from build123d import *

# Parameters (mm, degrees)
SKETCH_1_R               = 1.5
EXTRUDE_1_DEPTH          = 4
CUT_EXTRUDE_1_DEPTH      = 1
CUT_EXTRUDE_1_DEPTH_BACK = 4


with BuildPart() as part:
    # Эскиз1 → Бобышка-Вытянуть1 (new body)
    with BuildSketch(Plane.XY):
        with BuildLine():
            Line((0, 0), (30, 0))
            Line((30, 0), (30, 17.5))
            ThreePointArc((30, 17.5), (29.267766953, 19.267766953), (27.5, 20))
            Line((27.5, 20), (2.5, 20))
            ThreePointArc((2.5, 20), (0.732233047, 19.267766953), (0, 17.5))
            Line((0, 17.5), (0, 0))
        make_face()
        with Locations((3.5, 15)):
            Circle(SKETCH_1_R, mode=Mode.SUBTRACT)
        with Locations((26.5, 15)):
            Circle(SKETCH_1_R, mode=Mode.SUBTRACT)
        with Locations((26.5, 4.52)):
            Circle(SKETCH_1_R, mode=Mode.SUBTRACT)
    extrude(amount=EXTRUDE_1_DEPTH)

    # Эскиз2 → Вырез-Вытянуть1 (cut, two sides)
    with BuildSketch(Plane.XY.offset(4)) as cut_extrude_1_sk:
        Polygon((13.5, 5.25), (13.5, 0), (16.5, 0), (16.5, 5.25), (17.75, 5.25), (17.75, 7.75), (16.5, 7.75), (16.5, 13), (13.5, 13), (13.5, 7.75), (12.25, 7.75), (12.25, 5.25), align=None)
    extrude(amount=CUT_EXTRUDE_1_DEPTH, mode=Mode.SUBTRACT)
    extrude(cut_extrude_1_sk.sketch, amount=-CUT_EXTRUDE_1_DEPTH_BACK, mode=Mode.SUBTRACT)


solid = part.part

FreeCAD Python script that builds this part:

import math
import FreeCAD as App
import Part
import Sketcher
Q = App.Units.Quantity


def add_polygon(sketch, points):
    """Adds a closed chain of lines whose ends are joined by coincident constraints."""
    first, n = sketch.GeometryCount, len(points)
    for a, b in zip(points, points[1:] + points[:1]):
        sketch.addGeometry(Part.LineSegment(App.Vector(*a, 0), App.Vector(*b, 0)), False)
    for i in range(n):
        sketch.addConstraint(Sketcher.Constraint("Coincident", first + i, 2, first + (i + 1) % n, 1))

doc = App.newDocument("Part")
body = doc.addObject("PartDesign::Body", "Body")

sketch1 = body.newObject("Sketcher::SketchObject", "Sketch")
sketch1.AttachmentSupport = (doc.getObject("XY_Plane"), [""])
sketch1.MapMode = "FlatFace"
sketch1.addGeometry([
    Part.LineSegment(App.Vector(0, 0, 0), App.Vector(30, 0, 0)),
    Part.LineSegment(App.Vector(30, 0, 0), App.Vector(30, 17.5, 0)),
    Part.ArcOfCircle(Part.Circle(App.Vector(27.5, 17.5, 0), App.Vector(0, 0, 1), 2.5), math.radians(0), math.radians(90)),
    Part.LineSegment(App.Vector(27.5, 20, 0), App.Vector(2.5, 20, 0)),
    Part.ArcOfCircle(Part.Circle(App.Vector(2.5, 17.5, 0), App.Vector(0, 0, 1), 2.5), math.radians(90), math.radians(180)),
    Part.LineSegment(App.Vector(0, 17.5, 0), App.Vector(0, 0, 0)),
    Part.Circle(App.Vector(26.5, 4.5, 0), App.Vector(0, 0, 1), 1.5),
    Part.Circle(App.Vector(3.5, 15, 0), App.Vector(0, 0, 1), 1.5),
    Part.Circle(App.Vector(26.5, 15, 0), App.Vector(0, 0, 1), 1.5),
], False)
sketch1.addConstraint([
    Sketcher.Constraint("Coincident", 0, 2, 1, 1),
    Sketcher.Constraint("Tangent", 1, 2, 2, 1),
    Sketcher.Constraint("Tangent", 2, 2, 3, 1),
    Sketcher.Constraint("Tangent", 3, 2, 4, 1),
    Sketcher.Constraint("Tangent", 4, 2, 5, 1),
    Sketcher.Constraint("Coincident", 5, 2, 0, 1),
    Sketcher.Constraint("Horizontal", 0),
    Sketcher.Constraint("Vertical", 1),
    Sketcher.Constraint("Horizontal", 3),
    Sketcher.Constraint("Vertical", 5),
    Sketcher.Constraint("Coincident", 5, 2, -1, 1),
    Sketcher.Constraint("Equal", 2, 4),
    Sketcher.Constraint("Equal", 6, 7),
    Sketcher.Constraint("Equal", 7, 8),
    Sketcher.Constraint("Horizontal", 7, 3, 8, 3),
    Sketcher.Constraint("Vertical", 6, 3, 8, 3),
    Sketcher.Constraint("Diameter", 6, Q("3 mm")),
    Sketcher.Constraint("Radius", 2, Q("2.5 mm")),
    Sketcher.Constraint("DistanceX", 0, 1, 0, 2, Q("30 mm")),
    Sketcher.Constraint("DistanceY", 1, 1, 1, 2, Q("17.5 mm")),
    Sketcher.Constraint("DistanceY", -1, 1, 7, 3, Q("15 mm")),
    Sketcher.Constraint("DistanceX", 6, 3, 2, 3, Q("1 mm")),
    Sketcher.Constraint("DistanceX", 4, 3, 7, 3, Q("1 mm")),
    Sketcher.Constraint("DistanceY", -1, 1, 6, 3, Q("4.52 mm")),
])
pad1 = body.newObject("PartDesign::Pad", "Pad")
pad1.Profile = sketch1
pad1.Length = 4

sketch2 = body.newObject("Sketcher::SketchObject", "Sketch001")
sketch2.AttachmentSupport = (doc.getObject("XY_Plane"), [""])
sketch2.MapMode = "FlatFace"
sketch2.AttachmentOffset = App.Placement(App.Vector(0, 0, 4), App.Rotation())
add_polygon(sketch2, [(13.5, 5.2), (13.5, 0), (16.5, 0), (16.5, 5.2), (17.8, 5.2), (17.8, 7.8), (16.5, 7.8), (16.5, 13), (13.5, 13), (13.5, 7.8), (12.2, 7.8), (12.2, 5.2)])
sketch2.addConstraint([
    Sketcher.Constraint("Vertical", 0),
    Sketcher.Constraint("Horizontal", 1),
    Sketcher.Constraint("Vertical", 2),
    Sketcher.Constraint("Horizontal", 3),
    Sketcher.Constraint("Vertical", 4),
    Sketcher.Constraint("Horizontal", 5),
    Sketcher.Constraint("Vertical", 6),
    Sketcher.Constraint("Horizontal", 7),
    Sketcher.Constraint("Vertical", 8),
    Sketcher.Constraint("Horizontal", 9),
    Sketcher.Constraint("Vertical", 10),
    Sketcher.Constraint("Horizontal", 11),
    Sketcher.Constraint("PointOnObject", 0, 2, -1),
    Sketcher.Constraint("Horizontal", 5, 2, 8, 2),
    Sketcher.Constraint("Horizontal", 3, 2, 10, 2),
    Sketcher.Constraint("Vertical", 2, 2, 5, 2),
    Sketcher.Constraint("Vertical", 0, 2, 7, 2),
    Sketcher.Constraint("Equal", 5, 9),
    Sketcher.Constraint("Equal", 2, 6),
    Sketcher.Constraint("DistanceX", 1, 1, 1, 2, Q("3 mm")),
    Sketcher.Constraint("DistanceY", 4, 1, 4, 2, Q("2.5 mm")),
    Sketcher.Constraint("DistanceY", -1, 1, 6, 2, Q("13 mm")),
    Sketcher.Constraint("DistanceX", 3, 1, 3, 2, Q("1.25 mm")),
    Sketcher.Constraint("DistanceX", -1, 1, 0, 2, Q("13.5 mm")),
])
pocket1 = body.newObject("PartDesign::Pocket", "Pocket")
pocket1.Profile = sketch2
pocket1.Type = "ThroughAll"
pocket1.Midplane = True

doc.recompute()
